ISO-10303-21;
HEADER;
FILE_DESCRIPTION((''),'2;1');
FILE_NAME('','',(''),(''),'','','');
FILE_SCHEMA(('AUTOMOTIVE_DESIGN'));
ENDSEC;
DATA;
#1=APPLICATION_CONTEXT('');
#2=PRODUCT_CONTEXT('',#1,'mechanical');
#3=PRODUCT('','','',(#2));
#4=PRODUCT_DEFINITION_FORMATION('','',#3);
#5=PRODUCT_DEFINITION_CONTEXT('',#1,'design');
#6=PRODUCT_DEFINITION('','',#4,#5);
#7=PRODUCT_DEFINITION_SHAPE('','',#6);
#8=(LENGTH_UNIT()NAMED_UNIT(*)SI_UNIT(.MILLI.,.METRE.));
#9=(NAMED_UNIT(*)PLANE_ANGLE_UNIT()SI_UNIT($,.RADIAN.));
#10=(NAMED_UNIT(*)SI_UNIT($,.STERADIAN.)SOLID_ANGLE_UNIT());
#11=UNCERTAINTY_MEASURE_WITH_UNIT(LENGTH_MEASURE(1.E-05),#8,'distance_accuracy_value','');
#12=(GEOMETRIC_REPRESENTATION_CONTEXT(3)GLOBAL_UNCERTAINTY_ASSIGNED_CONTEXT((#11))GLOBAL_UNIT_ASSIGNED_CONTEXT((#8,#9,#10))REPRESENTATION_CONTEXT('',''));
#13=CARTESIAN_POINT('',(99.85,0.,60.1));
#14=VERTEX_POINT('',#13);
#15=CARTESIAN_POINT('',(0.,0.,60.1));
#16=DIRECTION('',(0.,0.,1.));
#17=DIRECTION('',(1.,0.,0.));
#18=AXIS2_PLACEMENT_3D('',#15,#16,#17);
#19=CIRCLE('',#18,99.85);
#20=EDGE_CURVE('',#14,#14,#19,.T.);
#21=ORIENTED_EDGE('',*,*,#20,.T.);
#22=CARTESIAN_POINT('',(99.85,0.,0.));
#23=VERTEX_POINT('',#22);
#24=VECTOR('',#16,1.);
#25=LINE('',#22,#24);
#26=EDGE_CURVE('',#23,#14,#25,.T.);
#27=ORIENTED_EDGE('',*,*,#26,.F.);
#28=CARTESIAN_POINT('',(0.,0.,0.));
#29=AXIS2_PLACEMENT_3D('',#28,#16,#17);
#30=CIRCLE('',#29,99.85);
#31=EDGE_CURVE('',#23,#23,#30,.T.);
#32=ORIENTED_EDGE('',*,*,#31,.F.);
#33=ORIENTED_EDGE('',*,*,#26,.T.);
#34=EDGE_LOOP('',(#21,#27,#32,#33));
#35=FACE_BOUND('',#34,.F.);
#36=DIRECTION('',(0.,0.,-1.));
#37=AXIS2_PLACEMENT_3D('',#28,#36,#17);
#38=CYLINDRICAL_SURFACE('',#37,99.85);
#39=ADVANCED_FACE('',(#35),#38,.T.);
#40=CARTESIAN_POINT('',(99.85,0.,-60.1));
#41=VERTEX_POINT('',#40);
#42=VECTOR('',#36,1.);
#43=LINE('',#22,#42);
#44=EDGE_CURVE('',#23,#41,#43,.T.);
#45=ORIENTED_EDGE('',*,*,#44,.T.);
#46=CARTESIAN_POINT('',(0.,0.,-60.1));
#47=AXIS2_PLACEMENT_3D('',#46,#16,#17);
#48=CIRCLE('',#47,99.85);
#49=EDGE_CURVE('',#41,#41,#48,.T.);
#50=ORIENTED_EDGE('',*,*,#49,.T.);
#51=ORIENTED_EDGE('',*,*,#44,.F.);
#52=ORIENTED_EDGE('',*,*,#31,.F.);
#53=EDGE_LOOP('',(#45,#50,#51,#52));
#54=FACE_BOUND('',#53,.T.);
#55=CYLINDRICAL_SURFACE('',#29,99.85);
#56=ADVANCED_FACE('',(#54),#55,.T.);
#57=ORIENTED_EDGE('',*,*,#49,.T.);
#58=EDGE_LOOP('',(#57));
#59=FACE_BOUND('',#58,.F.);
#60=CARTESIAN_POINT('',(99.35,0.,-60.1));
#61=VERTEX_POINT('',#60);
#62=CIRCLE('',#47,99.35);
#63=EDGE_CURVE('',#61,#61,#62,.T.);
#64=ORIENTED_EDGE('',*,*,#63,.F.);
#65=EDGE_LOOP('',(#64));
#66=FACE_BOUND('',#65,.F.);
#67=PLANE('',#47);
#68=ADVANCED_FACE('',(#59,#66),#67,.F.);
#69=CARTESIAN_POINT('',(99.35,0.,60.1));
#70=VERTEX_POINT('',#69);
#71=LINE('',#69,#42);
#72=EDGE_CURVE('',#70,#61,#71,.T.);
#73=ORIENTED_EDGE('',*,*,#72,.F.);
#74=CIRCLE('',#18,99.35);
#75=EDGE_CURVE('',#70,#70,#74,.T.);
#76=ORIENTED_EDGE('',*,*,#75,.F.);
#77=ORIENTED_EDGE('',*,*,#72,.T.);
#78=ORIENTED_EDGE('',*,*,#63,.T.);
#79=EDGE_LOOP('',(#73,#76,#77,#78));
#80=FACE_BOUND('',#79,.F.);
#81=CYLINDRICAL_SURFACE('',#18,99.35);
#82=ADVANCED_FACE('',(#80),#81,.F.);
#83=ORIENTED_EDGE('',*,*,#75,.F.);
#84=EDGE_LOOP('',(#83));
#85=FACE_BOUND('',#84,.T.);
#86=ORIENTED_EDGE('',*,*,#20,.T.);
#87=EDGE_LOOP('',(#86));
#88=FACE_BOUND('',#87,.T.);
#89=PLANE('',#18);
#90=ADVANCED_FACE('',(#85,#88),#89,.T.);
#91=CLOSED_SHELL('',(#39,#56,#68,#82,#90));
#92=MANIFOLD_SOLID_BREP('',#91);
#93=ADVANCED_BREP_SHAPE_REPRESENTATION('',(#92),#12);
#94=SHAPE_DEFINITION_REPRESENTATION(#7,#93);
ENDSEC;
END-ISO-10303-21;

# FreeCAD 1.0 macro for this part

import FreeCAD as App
import Part
import Sketcher

V = App.Vector
Q = App.Units.Quantity

doc = App.newDocument("Part")
body = doc.addObject("PartDesign::Body", "Body")

sketch1 = body.newObject("Sketcher::SketchObject", "Sketch")
sketch1.AttachmentSupport = (doc.getObject("XY_Plane"), [""])
sketch1.MapMode = "FlatFace"
sketch1.addGeometry(Part.Circle(V(0, 0, 0), V(0, 0, 1), 100), False)
sketch1.addConstraint([
    Sketcher.Constraint("Coincident", 0, 3, -1, 1),
    Sketcher.Constraint("Diameter", 0, Q("199.7 mm")),
])
pad1 = body.newObject("PartDesign::Pad", "Pad")
pad1.Profile = sketch1
pad1.Length = 120.2
pad1.Midplane = True

sketch2 = body.newObject("Sketcher::SketchObject", "Sketch001")
sketch2.AttachmentSupport = (doc.getObject("XY_Plane"), [""])
sketch2.MapMode = "FlatFace"
sketch2.AttachmentOffset = App.Placement(V(0, 0, 60.1), App.Rotation())
sketch2.addGeometry(Part.Circle(V(0, 0, 0), V(0, 0, 1), 99), False)
sketch2.addConstraint([
    Sketcher.Constraint("Coincident", 0, 3, -1, 1),
    Sketcher.Constraint("Diameter", 0, Q("198.7 mm")),
])
pocket1 = body.newObject("PartDesign::Pocket", "Pocket")
pocket1.Profile = sketch2
pocket1.Type = "ThroughAll"

doc.recompute()
